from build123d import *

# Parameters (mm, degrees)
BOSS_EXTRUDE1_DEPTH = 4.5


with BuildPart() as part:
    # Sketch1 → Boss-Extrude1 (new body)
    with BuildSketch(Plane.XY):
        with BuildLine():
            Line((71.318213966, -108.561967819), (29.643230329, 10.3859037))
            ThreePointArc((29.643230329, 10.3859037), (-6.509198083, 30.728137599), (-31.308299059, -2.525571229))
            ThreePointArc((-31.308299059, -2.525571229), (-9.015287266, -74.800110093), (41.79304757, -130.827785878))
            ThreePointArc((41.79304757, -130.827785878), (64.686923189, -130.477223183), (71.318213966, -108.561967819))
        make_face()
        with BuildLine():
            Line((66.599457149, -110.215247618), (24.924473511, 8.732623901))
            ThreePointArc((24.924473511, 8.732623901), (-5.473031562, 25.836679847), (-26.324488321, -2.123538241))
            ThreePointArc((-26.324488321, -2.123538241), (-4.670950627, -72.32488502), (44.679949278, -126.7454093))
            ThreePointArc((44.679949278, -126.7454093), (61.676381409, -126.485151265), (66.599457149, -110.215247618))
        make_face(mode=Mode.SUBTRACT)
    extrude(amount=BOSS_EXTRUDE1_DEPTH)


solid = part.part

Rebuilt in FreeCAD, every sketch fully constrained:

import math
import FreeCAD as App
import Part
import Sketcher
from FreeCAD import Vector
Q = App.Units.Quantity

doc = App.newDocument("Part")
body = doc.addObject("PartDesign::Body", "Body")

sketch1 = doc.addObject("Sketcher::SketchObject", "Sketch")
body.addObject(sketch1)
sketch1.AttachmentSupport = (doc.XY_Plane, [""])
sketch1.MapMode = "FlatFace"
sketch1.addGeometry(Part.LineSegment(Vector(71, -109, 0), Vector(30, 10, 0)), False)
sketch1.addGeometry(Part.ArcOfCircle(Part.Circle(Vector(0, 0, 0), Vector(0, 0, 1), 31), math.radians(19), math.radians(185)), False)
sketch1.addGeometry(Part.ArcOfCircle(Part.Circle(Vector(142, 11, 0), Vector(0, 0, 1), 174), math.radians(-175), math.radians(-125)), False)
sketch1.addGeometry(Part.ArcOfCircle(Part.Circle(Vector(53, -115, 0), Vector(0, 0, 1), 19), math.radians(-125), math.radians(19)), False)
sketch1.addGeometry(Part.LineSegment(Vector(25, 9, 0), Vector(67, -110, 0)), False)
sketch1.addGeometry(Part.ArcOfCircle(Part.Circle(Vector(53, -115, 0), Vector(0, 0, 1), 14), math.radians(-125), math.radians(19)), False)
sketch1.addGeometry(Part.ArcOfCircle(Part.Circle(Vector(142, 11, 0), Vector(0, 0, 1), 169), math.radians(-175), math.radians(-125)), False)
sketch1.addGeometry(Part.ArcOfCircle(Part.Circle(Vector(0, 0, 0), Vector(0, 0, 1), 26), math.radians(19), math.radians(185)), False)
sketch1.addConstraint(Sketcher.Constraint("Tangent", 0, 2, 1, 1))
sketch1.addConstraint(Sketcher.Constraint("Tangent", 1, 2, 2, 1))
sketch1.addConstraint(Sketcher.Constraint("Tangent", 2, 2, 3, 1))
sketch1.addConstraint(Sketcher.Constraint("Tangent", 3, 2, 0, 1))
sketch1.addConstraint(Sketcher.Constraint("Tangent", 4, 2, 5, 2))
sketch1.addConstraint(Sketcher.Constraint("Tangent", 5, 1, 6, 2))
sketch1.addConstraint(Sketcher.Constraint("Tangent", 6, 1, 7, 2))
sketch1.addConstraint(Sketcher.Constraint("Tangent", 7, 1, 4, 1))
sketch1.addConstraint(Sketcher.Constraint("Coincident", 1, 3, -1, 1))
sketch1.addConstraint(Sketcher.Constraint("Coincident", 7, 3, -1, 1))
sketch1.addConstraint(Sketcher.Constraint("Coincident", 5, 3, 3, 3))
sketch1.addConstraint(Sketcher.Constraint("Coincident", 6, 3, 2, 3))
sketch1.addConstraint(Sketcher.Constraint("Radius", 1, Q("31.41 mm")))
sketch1.addConstraint(Sketcher.Constraint("Radius", 3, Q("19.41 mm")))
sketch1.addConstraint(Sketcher.Constraint("Radius", 5, Q("14.41 mm")))
sketch1.addConstraint(Sketcher.Constraint("DistanceX", -1, 1, 3, 3, Q("53 mm")))
sketch1.addConstraint(Sketcher.Constraint("DistanceY", 3, 3, -1, 1, Q("114.98 mm")))
sketch1.addConstraint(Sketcher.Constraint("Radius", 2, Q("174.307387 mm")))
pad1 = doc.addObject("PartDesign::Pad", "Pad")
body.addObject(pad1)
pad1.Profile = sketch1
pad1.Length = 4.5

doc.recompute()
